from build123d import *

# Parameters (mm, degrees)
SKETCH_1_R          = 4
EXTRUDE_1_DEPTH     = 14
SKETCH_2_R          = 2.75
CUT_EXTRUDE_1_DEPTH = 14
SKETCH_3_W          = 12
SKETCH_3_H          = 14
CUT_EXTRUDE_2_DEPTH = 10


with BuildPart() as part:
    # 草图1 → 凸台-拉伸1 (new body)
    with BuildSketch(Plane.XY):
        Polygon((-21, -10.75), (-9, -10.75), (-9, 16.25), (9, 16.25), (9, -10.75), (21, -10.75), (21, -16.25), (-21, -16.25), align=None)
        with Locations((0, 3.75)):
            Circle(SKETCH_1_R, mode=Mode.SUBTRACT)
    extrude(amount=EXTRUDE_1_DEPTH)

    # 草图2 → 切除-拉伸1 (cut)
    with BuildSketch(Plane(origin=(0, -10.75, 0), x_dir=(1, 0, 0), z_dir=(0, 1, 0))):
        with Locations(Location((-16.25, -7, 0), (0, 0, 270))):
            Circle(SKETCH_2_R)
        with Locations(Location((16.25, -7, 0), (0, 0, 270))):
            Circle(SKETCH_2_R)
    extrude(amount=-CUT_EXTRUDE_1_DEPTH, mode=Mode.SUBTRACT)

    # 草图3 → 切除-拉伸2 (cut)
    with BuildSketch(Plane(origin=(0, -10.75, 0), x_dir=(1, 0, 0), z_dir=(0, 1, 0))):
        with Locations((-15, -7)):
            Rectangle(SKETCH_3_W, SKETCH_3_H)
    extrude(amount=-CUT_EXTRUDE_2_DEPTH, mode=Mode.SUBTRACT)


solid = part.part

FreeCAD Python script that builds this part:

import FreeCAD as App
import Part
import Sketcher
from FreeCAD import Vector

doc = App.newDocument("Part")
body = doc.addObject("PartDesign::Body", "Body")

# Sketch on XY plane
sketch1 = body.newObject("Sketcher::SketchObject", "Sketch")
sketch1.AttachmentSupport = (doc.getObject("XY_Plane"), [""])
sketch1.MapMode = "FlatFace"
sketch1.addGeometry(Part.LineSegment(Vector(-9, -10.8, 0), Vector(-21, -10.8, 0)), False)
sketch1.addGeometry(Part.LineSegment(Vector(-21, -10.8, 0), Vector(-21, -16.2, 0)), False)
sketch1.addGeometry(Part.LineSegment(Vector(-21, -16.2, 0), Vector(21, -16.2, 0)), False)
sketch1.addGeometry(Part.LineSegment(Vector(21, -16.2, 0), Vector(21, -10.8, 0)), False)
sketch1.addGeometry(Part.LineSegment(Vector(21, -10.8, 0), Vector(9, -10.8, 0)), False)
sketch1.addGeometry(Part.LineSegment(Vector(9, -10.8, 0), Vector(9, 16.2, 0)), False)
sketch1.addGeometry(Part.LineSegment(Vector(9, 16.2, 0), Vector(-9, 16.2, 0)), False)
sketch1.addGeometry(Part.LineSegment(Vector(-9, 16.2, 0), Vector(-9, -10.8, 0)), False)
sketch1.addGeometry(Part.Circle(Vector(0, 3.8, 0), Vector(0, 0, 1), 4), False)
sketch1.addConstraint(Sketcher.Constraint("Coincident", 0, 2, 1, 1))
sketch1.addConstraint(Sketcher.Constraint("Coincident", 1, 2, 2, 1))
sketch1.addConstraint(Sketcher.Constraint("Coincident", 2, 2, 3, 1))
sketch1.addConstraint(Sketcher.Constraint("Coincident", 3, 2, 4, 1))
sketch1.addConstraint(Sketcher.Constraint("Coincident", 4, 2, 5, 1))
sketch1.addConstraint(Sketcher.Constraint("Coincident", 5, 2, 6, 1))
sketch1.addConstraint(Sketcher.Constraint("Coincident", 6, 2, 7, 1))
sketch1.addConstraint(Sketcher.Constraint("Coincident", 7, 2, 0, 1))
sketch1.addConstraint(Sketcher.Constraint("Horizontal", 0))
sketch1.addConstraint(Sketcher.Constraint("Vertical", 1))
sketch1.addConstraint(Sketcher.Constraint("Horizontal", 2))
sketch1.addConstraint(Sketcher.Constraint("Vertical", 3))
sketch1.addConstraint(Sketcher.Constraint("Horizontal", 4))
sketch1.addConstraint(Sketcher.Constraint("Vertical", 5))
sketch1.addConstraint(Sketcher.Constraint("Horizontal", 6))
sketch1.addConstraint(Sketcher.Constraint("Vertical", 7))
sketch1.addConstraint(Sketcher.Constraint("Symmetric", 0, 2, 3, 2, -2))
sketch1.addConstraint(Sketcher.Constraint("PointOnObject", 8, 3, -2))
sketch1.addConstraint(Sketcher.Constraint("Equal", 0, 4))
sketch1.addConstraint(Sketcher.Constraint("Diameter", 8, 8.0))
sketch1.addConstraint(Sketcher.Constraint("DistanceX", 0, 2, 0, 1, 12.0))
sketch1.addConstraint(Sketcher.Constraint("DistanceX", 2, 1, 2, 2, 42.0))
sketch1.addConstraint(Sketcher.Constraint("DistanceY", 5, 1, 5, 2, 27.0))
sketch1.addConstraint(Sketcher.Constraint("DistanceY", 1, 2, 1, 1, 5.5))
sketch1.addConstraint(Sketcher.Constraint("DistanceY", 1, 2, 8, 3, 20.0))
sketch1.addConstraint(Sketcher.Constraint("DistanceY", -1, 1, 8, 3, 3.75))
pad1 = body.newObject("PartDesign::Pad", "Pad")
pad1.Profile = sketch1
pad1.Length = 14

# Sketch on XZ plane
sketch2 = body.newObject("Sketcher::SketchObject", "Sketch001")
sketch2.AttachmentSupport = (doc.getObject("XZ_Plane"), [""])
sketch2.MapMode = "FlatFace"
sketch2.AttachmentOffset = App.Placement(Vector(0, 0, 10.75), App.Rotation())
sketch2.addGeometry(Part.Circle(Vector(-16.2, 7, 0), Vector(0, 0, 1), 2.8), False)
sketch2.addGeometry(Part.Circle(Vector(16.2, 7, 0), Vector(0, 0, 1), 2.8), False)
sketch2.addConstraint(Sketcher.Constraint("Equal", 0, 1))
sketch2.addConstraint(Sketcher.Constraint("Symmetric", 0, 3, 1, 3, -2))
sketch2.addConstraint(Sketcher.Constraint("Diameter", 0, 5.5))
sketch2.addConstraint(Sketcher.Constraint("DistanceY", -1, 1, 0, 3, 7.0))
sketch2.addConstraint(Sketcher.Constraint("DistanceX", 0, 3, 1, 3, 32.5))
pocket1 = body.newObject("PartDesign::Pocket", "Pocket")
pocket1.Profile = sketch2
pocket1.Length = 14
pocket1.Reversed = True

# Sketch on XZ plane
sketch3 = body.newObject("Sketcher::SketchObject", "Sketch002")
sketch3.AttachmentSupport = (doc.getObject("XZ_Plane"), [""])
sketch3.MapMode = "FlatFace"
sketch3.AttachmentOffset = App.Placement(Vector(0, 0, 10.75), App.Rotation())
sketch3.addGeometry(Part.LineSegment(Vector(-21, 0, 0), Vector(-21, 14, 0)), False)
sketch3.addGeometry(Part.LineSegment(Vector(-21, 14, 0), Vector(-9, 14, 0)), False)
sketch3.addGeometry(Part.LineSegment(Vector(-9, 14, 0), Vector(-9, 0, 0)), False)
sketch3.addGeometry(Part.LineSegment(Vector(-9, 0, 0), Vector(-21, 0, 0)), False)
sketch3.addConstraint(Sketcher.Constraint("Coincident", 0, 2, 1, 1))
sketch3.addConstraint(Sketcher.Constraint("Coincident", 1, 2, 2, 1))
sketch3.addConstraint(Sketcher.Constraint("Coincident", 2, 2, 3, 1))
sketch3.addConstraint(Sketcher.Constraint("Coincident", 3, 2, 0, 1))
sketch3.addConstraint(Sketcher.Constraint("Vertical", 0))
sketch3.addConstraint(Sketcher.Constraint("Horizontal", 1))
sketch3.addConstraint(Sketcher.Constraint("Vertical", 2))
sketch3.addConstraint(Sketcher.Constraint("Horizontal", 3))
sketch3.addConstraint(Sketcher.Constraint("PointOnObject", 2, 2, -1))
sketch3.addConstraint(Sketcher.Constraint("DistanceX", 1, 1, 1, 2, 12.0))
sketch3.addConstraint(Sketcher.Constraint("DistanceY", 0, 1, 0, 2, 14.0))
sketch3.addConstraint(Sketcher.Constraint("DistanceX", 0, 2, -1, 1, 21.0))
pocket2 = body.newObject("PartDesign::Pocket", "Pocket001")
pocket2.Profile = sketch3
pocket2.Length = 10
pocket2.Reversed = True

doc.recompute()
